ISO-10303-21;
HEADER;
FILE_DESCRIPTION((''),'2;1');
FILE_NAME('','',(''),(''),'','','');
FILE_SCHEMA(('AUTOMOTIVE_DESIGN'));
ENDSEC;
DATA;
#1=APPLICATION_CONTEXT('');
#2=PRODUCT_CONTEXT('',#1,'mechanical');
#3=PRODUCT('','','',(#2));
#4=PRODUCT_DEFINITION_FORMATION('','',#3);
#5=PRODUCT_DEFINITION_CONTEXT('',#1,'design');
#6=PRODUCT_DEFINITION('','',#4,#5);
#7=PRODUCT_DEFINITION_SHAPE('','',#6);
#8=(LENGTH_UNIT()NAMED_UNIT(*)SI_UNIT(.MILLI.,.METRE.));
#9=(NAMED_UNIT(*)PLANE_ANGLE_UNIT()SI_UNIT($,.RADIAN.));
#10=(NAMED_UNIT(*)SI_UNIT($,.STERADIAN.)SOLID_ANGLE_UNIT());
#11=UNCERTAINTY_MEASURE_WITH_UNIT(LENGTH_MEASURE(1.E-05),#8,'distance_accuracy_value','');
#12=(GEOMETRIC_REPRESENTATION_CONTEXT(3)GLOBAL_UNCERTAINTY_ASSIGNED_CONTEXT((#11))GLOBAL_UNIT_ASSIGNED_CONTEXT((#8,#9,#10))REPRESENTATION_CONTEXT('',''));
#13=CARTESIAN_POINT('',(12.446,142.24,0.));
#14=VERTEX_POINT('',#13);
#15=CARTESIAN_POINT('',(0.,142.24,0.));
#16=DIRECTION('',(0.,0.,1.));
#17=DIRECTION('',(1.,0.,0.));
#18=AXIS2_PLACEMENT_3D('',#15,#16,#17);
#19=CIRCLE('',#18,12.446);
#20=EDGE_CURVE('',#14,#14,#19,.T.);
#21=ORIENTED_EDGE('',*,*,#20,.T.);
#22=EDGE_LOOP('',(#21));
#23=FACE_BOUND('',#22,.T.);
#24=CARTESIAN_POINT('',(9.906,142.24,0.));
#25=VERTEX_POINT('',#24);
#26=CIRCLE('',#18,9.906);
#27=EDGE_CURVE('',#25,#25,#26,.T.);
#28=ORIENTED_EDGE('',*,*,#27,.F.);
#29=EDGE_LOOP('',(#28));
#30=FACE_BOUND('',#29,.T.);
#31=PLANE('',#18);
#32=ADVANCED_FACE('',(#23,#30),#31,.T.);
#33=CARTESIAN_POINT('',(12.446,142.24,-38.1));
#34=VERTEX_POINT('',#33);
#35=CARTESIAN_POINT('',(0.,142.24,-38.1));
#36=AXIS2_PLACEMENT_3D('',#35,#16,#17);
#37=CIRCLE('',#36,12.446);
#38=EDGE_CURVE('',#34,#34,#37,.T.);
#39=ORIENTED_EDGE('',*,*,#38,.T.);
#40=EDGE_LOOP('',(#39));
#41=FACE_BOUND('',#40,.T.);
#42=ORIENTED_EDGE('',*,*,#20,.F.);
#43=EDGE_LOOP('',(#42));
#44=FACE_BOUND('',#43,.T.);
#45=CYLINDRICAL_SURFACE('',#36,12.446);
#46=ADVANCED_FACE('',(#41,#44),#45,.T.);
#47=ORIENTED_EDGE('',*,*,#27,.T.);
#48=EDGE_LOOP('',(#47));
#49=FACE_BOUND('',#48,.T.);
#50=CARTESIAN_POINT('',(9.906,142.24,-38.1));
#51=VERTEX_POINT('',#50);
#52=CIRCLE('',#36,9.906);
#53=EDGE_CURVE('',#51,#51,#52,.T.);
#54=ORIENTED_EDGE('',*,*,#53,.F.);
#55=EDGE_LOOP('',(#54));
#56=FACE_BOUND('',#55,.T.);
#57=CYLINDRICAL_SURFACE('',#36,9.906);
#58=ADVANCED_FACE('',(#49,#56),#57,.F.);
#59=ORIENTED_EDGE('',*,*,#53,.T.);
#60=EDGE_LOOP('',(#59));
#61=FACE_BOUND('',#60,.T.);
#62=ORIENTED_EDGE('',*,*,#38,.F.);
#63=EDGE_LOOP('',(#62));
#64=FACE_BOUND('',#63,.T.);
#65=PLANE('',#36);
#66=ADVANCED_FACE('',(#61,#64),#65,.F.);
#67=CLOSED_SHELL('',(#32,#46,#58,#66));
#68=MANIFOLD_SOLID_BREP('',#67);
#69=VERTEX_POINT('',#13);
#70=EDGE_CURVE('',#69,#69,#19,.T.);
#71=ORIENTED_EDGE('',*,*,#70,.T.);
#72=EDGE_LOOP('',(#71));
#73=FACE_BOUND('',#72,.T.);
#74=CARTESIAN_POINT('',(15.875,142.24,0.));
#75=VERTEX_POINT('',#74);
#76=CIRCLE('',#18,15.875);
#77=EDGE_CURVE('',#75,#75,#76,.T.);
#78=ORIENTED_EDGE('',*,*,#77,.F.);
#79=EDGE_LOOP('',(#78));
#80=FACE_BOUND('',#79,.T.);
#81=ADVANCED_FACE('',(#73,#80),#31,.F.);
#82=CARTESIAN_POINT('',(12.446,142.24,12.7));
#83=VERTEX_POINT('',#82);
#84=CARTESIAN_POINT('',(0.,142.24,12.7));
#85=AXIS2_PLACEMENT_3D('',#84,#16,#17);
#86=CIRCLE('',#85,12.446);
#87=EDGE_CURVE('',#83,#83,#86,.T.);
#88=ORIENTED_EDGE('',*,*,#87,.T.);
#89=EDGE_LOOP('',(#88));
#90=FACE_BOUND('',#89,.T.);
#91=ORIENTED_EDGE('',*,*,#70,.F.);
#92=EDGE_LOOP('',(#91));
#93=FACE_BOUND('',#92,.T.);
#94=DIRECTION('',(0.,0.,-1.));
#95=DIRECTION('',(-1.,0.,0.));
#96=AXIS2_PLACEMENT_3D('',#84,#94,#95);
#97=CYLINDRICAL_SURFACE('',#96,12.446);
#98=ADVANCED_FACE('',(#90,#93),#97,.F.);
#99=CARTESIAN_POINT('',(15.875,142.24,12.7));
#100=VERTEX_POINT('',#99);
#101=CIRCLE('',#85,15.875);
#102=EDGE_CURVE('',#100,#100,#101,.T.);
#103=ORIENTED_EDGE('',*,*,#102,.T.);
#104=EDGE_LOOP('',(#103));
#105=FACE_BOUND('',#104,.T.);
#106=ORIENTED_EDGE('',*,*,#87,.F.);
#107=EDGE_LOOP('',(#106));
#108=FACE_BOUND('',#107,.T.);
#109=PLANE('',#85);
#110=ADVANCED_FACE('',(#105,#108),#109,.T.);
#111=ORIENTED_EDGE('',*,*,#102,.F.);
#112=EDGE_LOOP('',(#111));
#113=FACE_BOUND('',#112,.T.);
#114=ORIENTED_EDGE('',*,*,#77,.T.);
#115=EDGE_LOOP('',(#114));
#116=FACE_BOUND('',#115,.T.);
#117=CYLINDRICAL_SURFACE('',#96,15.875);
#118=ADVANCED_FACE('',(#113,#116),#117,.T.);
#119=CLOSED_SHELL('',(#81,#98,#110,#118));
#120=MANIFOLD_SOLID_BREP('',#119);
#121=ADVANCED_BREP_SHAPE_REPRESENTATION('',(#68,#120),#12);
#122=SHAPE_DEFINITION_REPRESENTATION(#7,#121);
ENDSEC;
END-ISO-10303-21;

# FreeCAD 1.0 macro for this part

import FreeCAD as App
import Part
import Sketcher
Q = App.Units.Quantity

doc = App.newDocument("Part")
params = doc.addObject("Spreadsheet::Sheet", "Params")
for row, (alias, value) in enumerate([
    ("sketch1_diameter", "0.98 in"),
    ("sketch1_diameter2", "0.78 in"),
    ("pad1_length", "1.5 in"),
    ("sketch2_diameter", "1.25 in"),
    ("sketch2_diameter2", "0.98 in"),
    ("pad2_length", "0.5 in"),
], start=1):
    params.set(f"A{row}", alias)
    params.set(f"B{row}", "=" + value)
    params.setAlias(f"B{row}", alias)

body = doc.addObject("PartDesign::Body", "Body")

# Sketch on XY plane
sketch1 = body.newObject("Sketcher::SketchObject", "Sketch")
sketch1.AttachmentSupport = (doc.getObject("XY_Plane"), [""])
sketch1.MapMode = "FlatFace"
sketch1.addGeometry(Part.Circle(App.Vector(0, 142, 0), App.Vector(0, 0, 1), 12), False)
sketch1.addGeometry(Part.Circle(App.Vector(0, 142, 0), App.Vector(0, 0, 1), 10), False)
sketch1.addConstraint(Sketcher.Constraint("Coincident", 1, 3, 0, 3))
sketch1.addConstraint(Sketcher.Constraint("PointOnObject", 0, 3, -2))
sketch1.addConstraint(Sketcher.Constraint("Diameter", 0, Q("0.98 in")))
sketch1.addConstraint(Sketcher.Constraint("Diameter", 1, Q("0.78 in")))
sketch1.addConstraint(Sketcher.Constraint("DistanceY", -1, 1, 0, 3, Q("5.6 in")))
sketch1.setExpression("Constraints[2]", "Params.sketch1_diameter")
sketch1.setExpression("Constraints[3]", "Params.sketch1_diameter2")
pad1 = body.newObject("PartDesign::Pad", "Pad")
pad1.Profile = sketch1
pad1.setExpression("Length", "Params.pad1_length")
pad1.Reversed = True
body2 = doc.addObject("PartDesign::Body", "Body001")

# Sketch on XY plane
sketch2 = body2.newObject("Sketcher::SketchObject", "Sketch001")
sketch2.AttachmentSupport = (doc.getObject("XY_Plane001"), [""])
sketch2.MapMode = "FlatFace"
sketch2.addGeometry(Part.Circle(App.Vector(0, 142, 0), App.Vector(0, 0, 1), 16), False)
sketch2.addGeometry(Part.Circle(App.Vector(0, 142, 0), App.Vector(0, 0, 1), 12), False)
sketch2.addConstraint(Sketcher.Constraint("Coincident", 1, 3, 0, 3))
sketch2.addConstraint(Sketcher.Constraint("PointOnObject", 0, 3, -2))
sketch2.addConstraint(Sketcher.Constraint("Diameter", 0, Q("1.25 in")))
sketch2.addConstraint(Sketcher.Constraint("Diameter", 1, Q("0.98 in")))
sketch2.addConstraint(Sketcher.Constraint("DistanceY", -1, 1, 0, 3, Q("5.6 in")))
sketch2.setExpression("Constraints[2]", "Params.sketch2_diameter")
sketch2.setExpression("Constraints[3]", "Params.sketch2_diameter2")
pad2 = body2.newObject("PartDesign::Pad", "Pad001")
pad2.Profile = sketch2
pad2.setExpression("Length", "Params.pad2_length")

doc.recompute()
